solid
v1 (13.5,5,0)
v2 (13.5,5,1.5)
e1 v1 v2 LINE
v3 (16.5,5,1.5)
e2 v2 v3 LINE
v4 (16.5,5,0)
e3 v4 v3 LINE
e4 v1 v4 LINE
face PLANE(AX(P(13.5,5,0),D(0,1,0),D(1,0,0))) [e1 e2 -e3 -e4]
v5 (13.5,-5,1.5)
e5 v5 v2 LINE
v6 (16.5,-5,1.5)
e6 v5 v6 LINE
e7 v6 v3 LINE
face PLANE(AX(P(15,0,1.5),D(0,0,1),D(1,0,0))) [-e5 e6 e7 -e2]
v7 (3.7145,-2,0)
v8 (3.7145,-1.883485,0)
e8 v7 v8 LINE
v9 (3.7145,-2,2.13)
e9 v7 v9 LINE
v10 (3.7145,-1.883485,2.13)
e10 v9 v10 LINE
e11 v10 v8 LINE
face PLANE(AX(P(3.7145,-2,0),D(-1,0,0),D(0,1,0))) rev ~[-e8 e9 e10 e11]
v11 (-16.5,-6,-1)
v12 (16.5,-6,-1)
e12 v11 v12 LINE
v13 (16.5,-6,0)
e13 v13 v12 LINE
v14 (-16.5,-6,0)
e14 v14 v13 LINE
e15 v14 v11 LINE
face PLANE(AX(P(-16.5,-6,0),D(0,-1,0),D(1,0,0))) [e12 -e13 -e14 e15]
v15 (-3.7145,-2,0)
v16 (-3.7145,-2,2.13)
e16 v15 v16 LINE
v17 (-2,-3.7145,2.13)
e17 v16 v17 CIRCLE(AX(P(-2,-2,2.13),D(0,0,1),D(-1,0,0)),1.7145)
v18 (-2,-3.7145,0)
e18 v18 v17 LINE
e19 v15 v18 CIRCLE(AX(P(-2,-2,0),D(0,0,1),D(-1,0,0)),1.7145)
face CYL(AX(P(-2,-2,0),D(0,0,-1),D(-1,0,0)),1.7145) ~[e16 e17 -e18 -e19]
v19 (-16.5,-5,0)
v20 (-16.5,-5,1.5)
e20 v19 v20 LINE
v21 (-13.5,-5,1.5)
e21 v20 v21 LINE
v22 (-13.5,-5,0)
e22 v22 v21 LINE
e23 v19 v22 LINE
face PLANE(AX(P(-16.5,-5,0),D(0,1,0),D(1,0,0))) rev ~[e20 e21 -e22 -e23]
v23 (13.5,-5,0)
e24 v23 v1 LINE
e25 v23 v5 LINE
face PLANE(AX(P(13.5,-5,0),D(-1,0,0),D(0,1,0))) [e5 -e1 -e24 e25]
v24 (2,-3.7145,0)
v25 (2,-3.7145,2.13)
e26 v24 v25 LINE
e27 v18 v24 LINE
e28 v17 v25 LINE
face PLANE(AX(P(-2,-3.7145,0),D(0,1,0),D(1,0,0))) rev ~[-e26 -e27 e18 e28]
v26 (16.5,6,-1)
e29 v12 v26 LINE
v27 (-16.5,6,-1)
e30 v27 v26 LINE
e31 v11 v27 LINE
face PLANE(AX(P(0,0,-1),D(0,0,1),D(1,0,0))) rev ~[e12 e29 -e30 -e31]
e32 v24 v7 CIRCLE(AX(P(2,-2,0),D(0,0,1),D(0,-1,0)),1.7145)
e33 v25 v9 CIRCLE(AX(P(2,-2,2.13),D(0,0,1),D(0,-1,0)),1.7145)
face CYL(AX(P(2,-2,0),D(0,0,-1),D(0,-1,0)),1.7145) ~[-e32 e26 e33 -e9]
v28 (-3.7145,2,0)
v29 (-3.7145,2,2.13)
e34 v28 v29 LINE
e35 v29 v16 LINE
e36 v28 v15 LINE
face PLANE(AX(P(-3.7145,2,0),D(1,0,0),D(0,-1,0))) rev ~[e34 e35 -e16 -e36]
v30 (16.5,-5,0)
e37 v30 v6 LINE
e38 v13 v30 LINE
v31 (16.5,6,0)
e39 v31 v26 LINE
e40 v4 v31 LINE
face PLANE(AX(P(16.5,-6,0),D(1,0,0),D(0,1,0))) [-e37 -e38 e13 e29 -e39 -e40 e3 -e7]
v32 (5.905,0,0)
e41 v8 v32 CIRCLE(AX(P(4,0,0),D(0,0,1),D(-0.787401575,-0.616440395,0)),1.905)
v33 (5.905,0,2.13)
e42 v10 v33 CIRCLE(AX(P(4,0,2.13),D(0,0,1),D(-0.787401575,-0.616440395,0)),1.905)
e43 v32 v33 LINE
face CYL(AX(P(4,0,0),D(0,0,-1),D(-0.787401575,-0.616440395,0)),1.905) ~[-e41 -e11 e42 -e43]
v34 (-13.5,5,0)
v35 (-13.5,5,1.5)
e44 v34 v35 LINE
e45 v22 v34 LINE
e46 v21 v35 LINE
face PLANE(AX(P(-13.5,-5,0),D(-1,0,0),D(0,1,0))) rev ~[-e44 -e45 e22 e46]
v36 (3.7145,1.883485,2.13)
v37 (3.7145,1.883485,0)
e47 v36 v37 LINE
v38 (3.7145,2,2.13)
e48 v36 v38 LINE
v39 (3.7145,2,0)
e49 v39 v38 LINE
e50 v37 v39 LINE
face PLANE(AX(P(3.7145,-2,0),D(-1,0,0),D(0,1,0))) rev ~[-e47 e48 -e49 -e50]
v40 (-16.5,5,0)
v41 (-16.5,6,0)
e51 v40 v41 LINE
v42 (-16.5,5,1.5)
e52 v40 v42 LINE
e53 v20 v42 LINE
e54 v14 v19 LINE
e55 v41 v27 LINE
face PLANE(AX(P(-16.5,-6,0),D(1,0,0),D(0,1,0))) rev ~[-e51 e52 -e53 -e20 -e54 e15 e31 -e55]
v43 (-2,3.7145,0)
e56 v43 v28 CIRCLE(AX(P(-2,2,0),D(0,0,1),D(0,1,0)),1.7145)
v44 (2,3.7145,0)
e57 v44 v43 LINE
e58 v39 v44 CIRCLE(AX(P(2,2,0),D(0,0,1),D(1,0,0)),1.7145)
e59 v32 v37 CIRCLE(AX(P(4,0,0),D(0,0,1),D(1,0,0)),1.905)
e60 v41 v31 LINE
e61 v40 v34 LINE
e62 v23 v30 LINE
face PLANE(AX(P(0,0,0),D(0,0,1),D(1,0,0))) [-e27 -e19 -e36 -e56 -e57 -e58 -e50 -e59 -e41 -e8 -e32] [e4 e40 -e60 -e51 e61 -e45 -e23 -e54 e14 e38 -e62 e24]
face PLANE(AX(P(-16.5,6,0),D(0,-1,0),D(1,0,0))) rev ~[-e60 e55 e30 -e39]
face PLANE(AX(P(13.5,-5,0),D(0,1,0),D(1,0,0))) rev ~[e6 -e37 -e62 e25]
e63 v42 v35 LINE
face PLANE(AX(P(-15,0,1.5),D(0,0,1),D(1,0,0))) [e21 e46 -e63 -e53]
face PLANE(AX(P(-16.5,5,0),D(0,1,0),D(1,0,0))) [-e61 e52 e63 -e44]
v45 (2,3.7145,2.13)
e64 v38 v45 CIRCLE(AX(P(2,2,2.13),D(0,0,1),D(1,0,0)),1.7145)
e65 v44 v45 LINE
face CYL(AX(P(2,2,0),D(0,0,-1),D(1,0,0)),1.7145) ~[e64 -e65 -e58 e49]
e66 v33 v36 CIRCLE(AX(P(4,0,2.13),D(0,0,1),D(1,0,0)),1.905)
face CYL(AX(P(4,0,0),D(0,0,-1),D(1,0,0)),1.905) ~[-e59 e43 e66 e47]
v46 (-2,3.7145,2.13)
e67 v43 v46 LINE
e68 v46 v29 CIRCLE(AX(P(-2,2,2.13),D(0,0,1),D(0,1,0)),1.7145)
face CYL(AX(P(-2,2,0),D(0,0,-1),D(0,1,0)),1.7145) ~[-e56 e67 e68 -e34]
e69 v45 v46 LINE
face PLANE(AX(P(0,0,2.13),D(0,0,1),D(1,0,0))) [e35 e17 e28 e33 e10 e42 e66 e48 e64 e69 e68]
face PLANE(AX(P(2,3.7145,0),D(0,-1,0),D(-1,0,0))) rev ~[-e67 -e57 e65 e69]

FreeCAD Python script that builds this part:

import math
import FreeCAD as App
import Part
import Sketcher
Q = App.Units.Quantity


def add_polygon(sketch, points):
    """Adds a closed chain of lines whose ends are joined by coincident constraints."""
    first, n = sketch.GeometryCount, len(points)
    for a, b in zip(points, points[1:] + points[:1]):
        sketch.addGeometry(Part.LineSegment(App.Vector(*a, 0), App.Vector(*b, 0)), False)
    for i in range(n):
        sketch.addConstraint(Sketcher.Constraint("Coincident", first + i, 2, first + (i + 1) % n, 1))

doc = App.newDocument("Part")
body = doc.addObject("PartDesign::Body", "Body")

# Sketch on XY plane
sketch1 = body.newObject("Sketcher::SketchObject", "Sketch")
sketch1.AttachmentSupport = (doc.getObject("XY_Plane"), [""])
sketch1.MapMode = "FlatFace"
add_polygon(sketch1, [(-2, 2), (-2, -2), (2, -2), (2, 2)])  # lines 0-3
sketch1.addConstraint(Sketcher.Constraint("Vertical", 0))
sketch1.addConstraint(Sketcher.Constraint("Horizontal", 1))
sketch1.addConstraint(Sketcher.Constraint("Vertical", 2))
sketch1.addConstraint(Sketcher.Constraint("Horizontal", 3))
sketch1.addConstraint(Sketcher.Constraint("Symmetric", 0, 2, 2, 2, -1, 1))
sketch1.addConstraint(Sketcher.Constraint("Equal", 3, 0))
sketch1.addConstraint(Sketcher.Constraint("DistanceX", 1, 1, 1, 2, Q("5 mm")))
pad1 = body.newObject("PartDesign::Pad", "Pad")
pad1.Profile = sketch1
pad1.Length = 2.13
body2 = doc.addObject("PartDesign::Body", "Body001")

# Sketch on XY plane
sketch2 = body2.newObject("Sketcher::SketchObject", "Sketch001")
sketch2.AttachmentSupport = (doc.getObject("XY_Plane001"), [""])
sketch2.MapMode = "FlatFace"
sketch2.addGeometry(Part.ArcOfCircle(Part.Circle(App.Vector(4, 0, 0), App.Vector(0, 0, 1), 1.9), math.radians(0), math.radians(142)), False)
sketch2.addGeometry(Part.LineSegment(App.Vector(2.5, 1.2, 0), App.Vector(2.5, -1.2, 0)), False)
sketch2.addGeometry(Part.ArcOfCircle(Part.Circle(App.Vector(4, 0, 0), App.Vector(0, 0, 1), 1.9), math.radians(-142), math.radians(0)), False)
sketch2.addConstraint(Sketcher.Constraint("Coincident", 0, 2, 1, 1))
sketch2.addConstraint(Sketcher.Constraint("Coincident", 1, 2, 2, 1))
sketch2.addConstraint(Sketcher.Constraint("Tangent", 2, 2, 0, 1))
sketch2.addConstraint(Sketcher.Constraint("Vertical", 1))
sketch2.addConstraint(Sketcher.Constraint("Equal", 0, 2))
sketch2.addConstraint(Sketcher.Constraint("PointOnObject", 0, 3, -1))
sketch2.addConstraint(Sketcher.Constraint("PointOnObject", 2, 2, -1))
sketch2.addConstraint(Sketcher.Constraint("DistanceX", -1, 1, 0, 3, Q("4 mm")))
sketch2.addConstraint(Sketcher.Constraint("Radius", 0, Q("1.905 mm")))
sketch2.addConstraint(Sketcher.Constraint("DistanceX", -1, 1, 0, 2, Q("2.5 mm")))
pad2 = body2.newObject("PartDesign::Pad", "Pad001")
pad2.Profile = sketch2
pad2.Length = 2.13
body3 = doc.addObject("PartDesign::Body", "Body002")

# Sketch on XY plane
sketch3 = body3.newObject("Sketcher::SketchObject", "Sketch002")
sketch3.AttachmentSupport = (doc.getObject("XY_Plane002"), [""])
sketch3.MapMode = "FlatFace"
add_polygon(sketch3, [(-16, 6), (-16, -6), (16, -6), (16, 6)])  # lines 0-3
sketch3.addConstraint(Sketcher.Constraint("Vertical", 0))
sketch3.addConstraint(Sketcher.Constraint("Horizontal", 1))
sketch3.addConstraint(Sketcher.Constraint("Vertical", 2))
sketch3.addConstraint(Sketcher.Constraint("Horizontal", 3))
sketch3.addConstraint(Sketcher.Constraint("Symmetric", 0, 2, 2, 2, -1, 1))
sketch3.addConstraint(Sketcher.Constraint("DistanceX", 1, 1, 1, 2, Q("33 mm")))
sketch3.addConstraint(Sketcher.Constraint("DistanceY", 0, 2, 0, 1, Q("12 mm")))
pad3 = body3.newObject("PartDesign::Pad", "Pad002")
pad3.Profile = sketch3
pad3.Length = 1
pad3.Reversed = True
doc.recompute()

boolean = body.newObject("PartDesign::Boolean", "Boolean")
boolean.Type = "Fuse"
boolean.addObjects([body2])
doc.recompute()

boolean2 = body.newObject("PartDesign::Boolean", "Boolean001")
boolean2.Type = "Fuse"
boolean2.addObjects([body3])

# Sketch on XY plane
sketch4 = body.newObject("Sketcher::SketchObject", "Sketch003")
sketch4.AttachmentSupport = (doc.getObject("XY_Plane"), [""])
sketch4.MapMode = "FlatFace"
sketch4.addGeometry(Part.LineSegment(App.Vector(2, 3.7, 0), App.Vector(-2, 3.7, 0)), False)
sketch4.addGeometry(Part.ArcOfCircle(Part.Circle(App.Vector(-2, 2, 0), App.Vector(0, 0, 1), 1.7), math.radians(90), math.radians(180)), False)
sketch4.addGeometry(Part.LineSegment(App.Vector(-3.7, 2, 0), App.Vector(-3.7, -2, 0)), False)
sketch4.addGeometry(Part.ArcOfCircle(Part.Circle(App.Vector(-2, -2, 0), App.Vector(0, 0, 1), 1.7), math.radians(180), math.radians(270)), False)
sketch4.addGeometry(Part.LineSegment(App.Vector(-2, -3.7, 0), App.Vector(2, -3.7, 0)), False)
sketch4.addGeometry(Part.ArcOfCircle(Part.Circle(App.Vector(2, -2, 0), App.Vector(0, 0, 1), 1.7), math.radians(-90), math.radians(0)), False)
sketch4.addGeometry(Part.LineSegment(App.Vector(3.7, -2, 0), App.Vector(3.7, 2, 0)), False)
sketch4.addGeometry(Part.ArcOfCircle(Part.Circle(App.Vector(2, 2, 0), App.Vector(0, 0, 1), 1.7), math.radians(0), math.radians(90)), False)
sketch4.addConstraint(Sketcher.Constraint("Tangent", 0, 2, 1, 1))
sketch4.addConstraint(Sketcher.Constraint("Tangent", 1, 2, 2, 1))
sketch4.addConstraint(Sketcher.Constraint("Tangent", 2, 2, 3, 1))
sketch4.addConstraint(Sketcher.Constraint("Tangent", 3, 2, 4, 1))
sketch4.addConstraint(Sketcher.Constraint("Tangent", 4, 2, 5, 1))
sketch4.addConstraint(Sketcher.Constraint("Tangent", 5, 2, 6, 1))
sketch4.addConstraint(Sketcher.Constraint("Tangent", 6, 2, 7, 1))
sketch4.addConstraint(Sketcher.Constraint("Tangent", 7, 2, 0, 1))
sketch4.addConstraint(Sketcher.Constraint("Horizontal", 0))
sketch4.addConstraint(Sketcher.Constraint("Vertical", 2))
sketch4.addConstraint(Sketcher.Constraint("Horizontal", 4))
sketch4.addConstraint(Sketcher.Constraint("Vertical", 6))
sketch4.addConstraint(Sketcher.Constraint("Equal", 1, 3))
sketch4.addConstraint(Sketcher.Constraint("Equal", 3, 5))
sketch4.addConstraint(Sketcher.Constraint("Equal", 5, 7))
sketch4.addConstraint(Sketcher.Constraint("Symmetric", 1, 3, 5, 3, -1, 1))
sketch4.addConstraint(Sketcher.Constraint("Equal", 4, 2))
sketch4.addConstraint(Sketcher.Constraint("DistanceX", 0, 2, 0, 1, Q("4 mm")))
sketch4.addConstraint(Sketcher.Constraint("Radius", 1, Q("1.7145 mm")))
pad4 = body.newObject("PartDesign::Pad", "Pad003")
pad4.Profile = sketch4
pad4.Type = "UpToLast"

# Sketch on XY plane
sketch5 = body.newObject("Sketcher::SketchObject", "Sketch004")
sketch5.AttachmentSupport = (doc.getObject("XY_Plane"), [""])
sketch5.MapMode = "FlatFace"
add_polygon(sketch5, [(-16.5, 5), (-16.5, -5), (-13.5, -5), (-13.5, 5)])  # lines 0-3
add_polygon(sketch5, [(13.5, 5), (13.5, -5), (16.5, -5), (16.5, 5)])  # lines 4-7
sketch5.addConstraint(Sketcher.Constraint("Vertical", 0))
sketch5.addConstraint(Sketcher.Constraint("Horizontal", 1))
sketch5.addConstraint(Sketcher.Constraint("Vertical", 2))
sketch5.addConstraint(Sketcher.Constraint("Horizontal", 3))
sketch5.addConstraint(Sketcher.Constraint("Vertical", 4))
sketch5.addConstraint(Sketcher.Constraint("Horizontal", 5))
sketch5.addConstraint(Sketcher.Constraint("Vertical", 6))
sketch5.addConstraint(Sketcher.Constraint("Horizontal", 7))
sketch5.addConstraint(Sketcher.Constraint("Symmetric", 2, 2, 4, 2, -1, 1))
sketch5.addConstraint(Sketcher.Constraint("Symmetric", 0, 2, 6, 2, -1, 1))
sketch5.addConstraint(Sketcher.Constraint("Horizontal", 1, 2, 4, 2))
sketch5.addConstraint(Sketcher.Constraint("DistanceX", 1, 1, 1, 2, Q("3 mm")))
sketch5.addConstraint(Sketcher.Constraint("DistanceY", 0, 2, 0, 1, Q("10 mm")))
sketch5.addConstraint(Sketcher.Constraint("DistanceX", 1, 2, 4, 2, Q("27 mm")))
pad5 = body.newObject("PartDesign::Pad", "Pad004")
pad5.Profile = sketch5
pad5.Length = 1.5

doc.recompute()
